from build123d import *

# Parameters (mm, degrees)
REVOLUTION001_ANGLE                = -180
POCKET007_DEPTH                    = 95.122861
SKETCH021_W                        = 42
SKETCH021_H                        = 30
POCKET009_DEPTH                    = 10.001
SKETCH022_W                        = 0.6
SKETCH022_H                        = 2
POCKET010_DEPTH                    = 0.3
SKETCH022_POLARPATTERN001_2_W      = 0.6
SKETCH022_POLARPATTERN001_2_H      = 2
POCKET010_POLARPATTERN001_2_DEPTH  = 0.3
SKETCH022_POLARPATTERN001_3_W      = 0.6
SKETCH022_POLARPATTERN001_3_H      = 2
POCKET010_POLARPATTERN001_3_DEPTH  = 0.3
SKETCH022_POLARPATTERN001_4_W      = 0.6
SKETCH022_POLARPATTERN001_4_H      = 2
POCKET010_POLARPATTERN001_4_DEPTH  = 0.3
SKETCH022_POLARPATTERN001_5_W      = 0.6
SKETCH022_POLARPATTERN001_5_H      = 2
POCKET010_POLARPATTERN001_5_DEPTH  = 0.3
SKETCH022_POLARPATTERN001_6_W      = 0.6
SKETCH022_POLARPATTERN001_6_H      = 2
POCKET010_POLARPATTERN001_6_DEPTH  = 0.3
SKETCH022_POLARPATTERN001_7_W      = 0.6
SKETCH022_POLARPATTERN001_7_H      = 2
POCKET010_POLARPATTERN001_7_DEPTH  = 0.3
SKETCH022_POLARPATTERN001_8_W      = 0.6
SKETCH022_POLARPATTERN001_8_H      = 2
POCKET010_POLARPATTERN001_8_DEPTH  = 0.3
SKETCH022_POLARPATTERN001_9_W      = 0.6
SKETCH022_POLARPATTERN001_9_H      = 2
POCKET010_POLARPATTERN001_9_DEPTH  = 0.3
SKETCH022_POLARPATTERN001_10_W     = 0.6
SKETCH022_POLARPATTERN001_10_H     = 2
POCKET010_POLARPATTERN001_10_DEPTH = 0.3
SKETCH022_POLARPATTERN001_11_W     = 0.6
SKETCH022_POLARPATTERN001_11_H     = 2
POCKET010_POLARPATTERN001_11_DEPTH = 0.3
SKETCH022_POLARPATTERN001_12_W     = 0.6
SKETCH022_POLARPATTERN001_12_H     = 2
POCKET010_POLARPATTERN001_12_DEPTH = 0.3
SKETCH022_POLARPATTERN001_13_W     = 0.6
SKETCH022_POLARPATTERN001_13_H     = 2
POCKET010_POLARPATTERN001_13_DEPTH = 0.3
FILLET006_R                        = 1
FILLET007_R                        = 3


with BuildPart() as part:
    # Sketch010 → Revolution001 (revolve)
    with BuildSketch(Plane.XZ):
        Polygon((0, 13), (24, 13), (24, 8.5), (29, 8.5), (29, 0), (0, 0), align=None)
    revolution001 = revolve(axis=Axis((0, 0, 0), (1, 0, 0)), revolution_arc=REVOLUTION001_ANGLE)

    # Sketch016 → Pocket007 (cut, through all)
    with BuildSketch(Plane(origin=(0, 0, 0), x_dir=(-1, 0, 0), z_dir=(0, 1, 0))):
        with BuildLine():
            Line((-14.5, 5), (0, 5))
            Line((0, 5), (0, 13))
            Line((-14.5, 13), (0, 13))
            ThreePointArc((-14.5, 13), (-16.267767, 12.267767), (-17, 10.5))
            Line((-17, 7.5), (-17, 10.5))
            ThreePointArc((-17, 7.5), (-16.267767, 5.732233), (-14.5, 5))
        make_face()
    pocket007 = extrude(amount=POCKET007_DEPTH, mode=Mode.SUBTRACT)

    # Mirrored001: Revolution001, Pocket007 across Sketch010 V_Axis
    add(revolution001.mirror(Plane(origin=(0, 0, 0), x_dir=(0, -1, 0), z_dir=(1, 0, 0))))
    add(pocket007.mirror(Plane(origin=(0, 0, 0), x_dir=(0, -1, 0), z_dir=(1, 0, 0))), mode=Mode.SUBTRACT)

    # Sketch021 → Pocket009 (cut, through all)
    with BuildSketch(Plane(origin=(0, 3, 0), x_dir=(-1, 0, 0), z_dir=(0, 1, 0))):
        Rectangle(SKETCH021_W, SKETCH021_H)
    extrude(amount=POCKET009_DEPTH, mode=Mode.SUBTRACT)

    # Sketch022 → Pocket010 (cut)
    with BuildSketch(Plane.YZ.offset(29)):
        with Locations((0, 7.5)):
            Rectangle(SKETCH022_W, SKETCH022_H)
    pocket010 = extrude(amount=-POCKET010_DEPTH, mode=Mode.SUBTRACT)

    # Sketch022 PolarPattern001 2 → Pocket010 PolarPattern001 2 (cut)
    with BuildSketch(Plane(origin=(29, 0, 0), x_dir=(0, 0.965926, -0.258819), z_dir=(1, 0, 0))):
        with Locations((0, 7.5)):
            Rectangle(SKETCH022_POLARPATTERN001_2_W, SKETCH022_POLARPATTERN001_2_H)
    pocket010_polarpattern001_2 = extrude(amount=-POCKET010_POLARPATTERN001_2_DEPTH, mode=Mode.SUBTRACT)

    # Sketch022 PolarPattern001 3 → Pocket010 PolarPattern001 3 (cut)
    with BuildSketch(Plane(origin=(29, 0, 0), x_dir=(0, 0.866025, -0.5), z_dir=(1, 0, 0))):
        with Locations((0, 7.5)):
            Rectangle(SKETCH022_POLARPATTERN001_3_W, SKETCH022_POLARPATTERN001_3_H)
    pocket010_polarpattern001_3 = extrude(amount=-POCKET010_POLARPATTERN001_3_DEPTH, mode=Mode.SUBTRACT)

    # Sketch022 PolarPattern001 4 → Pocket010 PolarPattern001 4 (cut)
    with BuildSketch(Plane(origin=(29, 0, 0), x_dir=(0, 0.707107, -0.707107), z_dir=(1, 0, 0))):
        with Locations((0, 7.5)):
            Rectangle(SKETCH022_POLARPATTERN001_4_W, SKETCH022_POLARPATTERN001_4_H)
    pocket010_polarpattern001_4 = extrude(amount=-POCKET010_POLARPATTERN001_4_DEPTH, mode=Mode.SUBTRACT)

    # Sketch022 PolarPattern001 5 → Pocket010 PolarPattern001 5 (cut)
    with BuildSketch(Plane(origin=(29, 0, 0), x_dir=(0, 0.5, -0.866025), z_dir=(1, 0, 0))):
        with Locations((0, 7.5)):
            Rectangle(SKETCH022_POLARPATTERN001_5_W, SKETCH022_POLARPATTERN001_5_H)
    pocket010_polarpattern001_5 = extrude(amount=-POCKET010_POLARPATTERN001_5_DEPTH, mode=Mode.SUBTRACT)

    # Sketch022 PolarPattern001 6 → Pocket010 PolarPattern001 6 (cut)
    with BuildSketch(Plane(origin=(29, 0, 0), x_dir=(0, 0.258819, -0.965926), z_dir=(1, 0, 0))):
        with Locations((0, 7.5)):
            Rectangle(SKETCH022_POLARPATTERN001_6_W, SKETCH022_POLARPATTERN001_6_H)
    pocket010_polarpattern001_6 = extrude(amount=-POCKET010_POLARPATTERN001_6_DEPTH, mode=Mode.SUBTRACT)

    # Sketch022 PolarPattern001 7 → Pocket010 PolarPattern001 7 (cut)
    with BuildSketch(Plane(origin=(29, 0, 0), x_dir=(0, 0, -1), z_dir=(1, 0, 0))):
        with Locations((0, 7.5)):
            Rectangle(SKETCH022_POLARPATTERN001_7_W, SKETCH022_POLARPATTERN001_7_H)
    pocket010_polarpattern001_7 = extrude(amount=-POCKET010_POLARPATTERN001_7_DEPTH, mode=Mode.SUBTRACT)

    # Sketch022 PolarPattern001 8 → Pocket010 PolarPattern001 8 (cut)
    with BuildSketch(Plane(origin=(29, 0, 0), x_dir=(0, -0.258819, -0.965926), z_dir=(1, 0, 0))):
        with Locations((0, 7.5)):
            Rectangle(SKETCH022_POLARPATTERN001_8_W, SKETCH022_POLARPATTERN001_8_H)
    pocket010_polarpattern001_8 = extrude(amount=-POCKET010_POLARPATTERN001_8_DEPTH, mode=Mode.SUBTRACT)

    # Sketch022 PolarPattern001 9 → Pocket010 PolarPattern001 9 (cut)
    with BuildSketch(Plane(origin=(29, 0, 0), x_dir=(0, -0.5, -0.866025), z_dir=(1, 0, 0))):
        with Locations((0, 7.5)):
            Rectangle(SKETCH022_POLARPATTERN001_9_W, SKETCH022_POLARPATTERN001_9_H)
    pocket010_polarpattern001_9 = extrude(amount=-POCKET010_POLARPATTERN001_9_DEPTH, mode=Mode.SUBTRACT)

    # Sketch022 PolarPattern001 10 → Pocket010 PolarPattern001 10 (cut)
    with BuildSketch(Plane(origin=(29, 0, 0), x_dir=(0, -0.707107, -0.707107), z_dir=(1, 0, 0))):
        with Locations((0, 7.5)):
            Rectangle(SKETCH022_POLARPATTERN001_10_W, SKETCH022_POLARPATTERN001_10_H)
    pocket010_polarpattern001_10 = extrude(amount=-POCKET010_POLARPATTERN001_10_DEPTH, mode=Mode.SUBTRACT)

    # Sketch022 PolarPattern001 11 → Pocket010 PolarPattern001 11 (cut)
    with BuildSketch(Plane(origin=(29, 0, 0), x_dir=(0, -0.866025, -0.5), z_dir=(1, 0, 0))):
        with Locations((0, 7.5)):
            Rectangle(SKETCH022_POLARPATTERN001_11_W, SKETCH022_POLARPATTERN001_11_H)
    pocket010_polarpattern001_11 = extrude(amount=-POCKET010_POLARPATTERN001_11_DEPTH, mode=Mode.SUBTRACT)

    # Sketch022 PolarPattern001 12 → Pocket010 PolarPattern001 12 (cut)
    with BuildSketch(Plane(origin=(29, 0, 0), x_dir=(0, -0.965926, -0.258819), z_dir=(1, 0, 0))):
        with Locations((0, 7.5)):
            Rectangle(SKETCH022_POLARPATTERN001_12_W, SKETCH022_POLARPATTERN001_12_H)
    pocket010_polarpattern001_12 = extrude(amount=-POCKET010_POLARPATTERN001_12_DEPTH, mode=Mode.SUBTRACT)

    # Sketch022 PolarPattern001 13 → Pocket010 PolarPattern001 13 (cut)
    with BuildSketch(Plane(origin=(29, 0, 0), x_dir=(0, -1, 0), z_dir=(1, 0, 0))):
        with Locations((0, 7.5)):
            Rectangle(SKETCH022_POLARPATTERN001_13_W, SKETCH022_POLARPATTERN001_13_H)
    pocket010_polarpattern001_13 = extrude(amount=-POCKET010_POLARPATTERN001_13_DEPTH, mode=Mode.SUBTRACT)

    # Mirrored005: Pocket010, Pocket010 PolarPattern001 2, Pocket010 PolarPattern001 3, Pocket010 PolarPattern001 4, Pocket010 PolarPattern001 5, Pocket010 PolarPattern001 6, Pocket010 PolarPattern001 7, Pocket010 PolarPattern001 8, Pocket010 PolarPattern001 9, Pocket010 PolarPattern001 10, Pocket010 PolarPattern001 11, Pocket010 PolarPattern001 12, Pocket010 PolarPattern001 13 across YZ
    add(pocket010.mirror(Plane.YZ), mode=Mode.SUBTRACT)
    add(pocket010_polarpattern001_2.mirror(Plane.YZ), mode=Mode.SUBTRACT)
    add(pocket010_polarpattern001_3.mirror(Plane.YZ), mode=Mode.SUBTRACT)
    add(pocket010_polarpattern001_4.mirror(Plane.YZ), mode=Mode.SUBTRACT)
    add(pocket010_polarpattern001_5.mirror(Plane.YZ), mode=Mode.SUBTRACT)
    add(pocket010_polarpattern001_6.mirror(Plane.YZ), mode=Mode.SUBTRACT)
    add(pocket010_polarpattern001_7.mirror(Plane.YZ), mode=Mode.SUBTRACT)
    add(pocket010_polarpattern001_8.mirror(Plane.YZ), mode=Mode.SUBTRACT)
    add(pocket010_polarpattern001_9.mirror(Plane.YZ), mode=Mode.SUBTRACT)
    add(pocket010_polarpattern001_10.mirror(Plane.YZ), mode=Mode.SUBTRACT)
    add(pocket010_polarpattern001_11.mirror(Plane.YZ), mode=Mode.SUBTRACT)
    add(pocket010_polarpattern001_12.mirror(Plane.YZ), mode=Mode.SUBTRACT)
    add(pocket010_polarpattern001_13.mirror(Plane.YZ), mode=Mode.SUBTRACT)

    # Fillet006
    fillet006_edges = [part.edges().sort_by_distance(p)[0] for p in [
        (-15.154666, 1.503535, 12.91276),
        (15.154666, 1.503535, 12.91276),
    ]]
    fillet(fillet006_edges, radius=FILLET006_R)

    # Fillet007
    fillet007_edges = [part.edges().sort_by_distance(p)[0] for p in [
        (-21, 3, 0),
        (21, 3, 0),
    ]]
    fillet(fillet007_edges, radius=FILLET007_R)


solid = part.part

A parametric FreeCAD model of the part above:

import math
import FreeCAD as App
import Part
import Sketcher

V = App.Vector
Q = App.Units.Quantity


def edges_at(feature, points):
    """Names of the edges that pass closest to the given points."""
    edges = feature.Shape.Edges
    near = lambda p: min(range(len(edges)), key=lambda i: edges[i].distToShape(Part.Vertex(*p))[0])
    return sorted({f"Edge{near(p) + 1}" for p in points})

doc = App.newDocument("Part")
body = doc.addObject("PartDesign::Body", "Body")

# Sketch on XZ plane
sketch1 = doc.addObject("Sketcher::SketchObject", "Sketch")
body.addObject(sketch1)
sketch1.AttachmentSupport = (doc.XZ_Plane, [""])
sketch1.MapMode = "FlatFace"
sketch1.addGeometry([
    Part.LineSegment(V(24, 13, 0), V(0, 13, 0)),  # 0
    Part.LineSegment(V(0, 13, 0), V(0, 0, 0)),  # 1
    Part.LineSegment(V(0, 0, 0), V(29, 0, 0)),  # 2
    Part.LineSegment(V(29, 0, 0), V(29, 8.5, 0)),  # 3
    Part.LineSegment(V(29, 8.5, 0), V(24, 8.5, 0)),  # 4
    Part.LineSegment(V(24, 8.5, 0), V(24, 13, 0)),  # 5
], False)
sketch1.addConstraint([
    Sketcher.Constraint("Coincident", 0, 2, 1, 1),
    Sketcher.Constraint("Coincident", 1, 2, 2, 1),
    Sketcher.Constraint("Coincident", 2, 2, 3, 1),
    Sketcher.Constraint("Coincident", 3, 2, 4, 1),
    Sketcher.Constraint("Coincident", 4, 2, 5, 1),
    Sketcher.Constraint("Coincident", 5, 2, 0, 1),
    Sketcher.Constraint("Horizontal", 0),
    Sketcher.Constraint("Vertical", 1),
    Sketcher.Constraint("Horizontal", 2),
    Sketcher.Constraint("Vertical", 3),
    Sketcher.Constraint("Horizontal", 4),
    Sketcher.Constraint("Vertical", 5),
    Sketcher.Constraint("Coincident", 1, 2, -1, 1),
    Sketcher.Constraint("DistanceX", 0, 2, 0, 1, 24.0),
    Sketcher.Constraint("DistanceX", 2, 1, 2, 2, 29.0),
    Sketcher.Constraint("DistanceY", 1, 2, 1, 1, 13.0),
    Sketcher.Constraint("DistanceY", 3, 1, 3, 2, 8.5),
])
revolution = doc.addObject("PartDesign::Revolution", "Revolution")
body.addObject(revolution)
revolution.Profile = sketch1
revolution.ReferenceAxis = (sketch1, ["H_Axis"])
revolution.Angle = 180
revolution.Reversed = True

# Sketch on XZ plane
sketch2 = doc.addObject("Sketcher::SketchObject", "Sketch001")
body.addObject(sketch2)
sketch2.AttachmentSupport = (doc.XZ_Plane, [""])
sketch2.MapMode = "FlatFace"
sketch2.addGeometry([
    Part.LineSegment(V(14.5, 5, 0), V(0, 5, 0)),  # 0
    Part.LineSegment(V(0, 5, 0), V(0, 13, 0)),  # 1
    Part.LineSegment(V(0, 13, 0), V(14.5, 13, 0)),  # 2
    Part.ArcOfCircle(Part.Circle(V(14.5, 10.5, 0), V(0, 0, 1), 2.5), math.radians(0), math.radians(90)),  # 3
    Part.LineSegment(V(17, 10.5, 0), V(17, 7.5, 0)),  # 4
    Part.ArcOfCircle(Part.Circle(V(14.5, 7.5, 0), V(0, 0, 1), 2.5), math.radians(-90), math.radians(0)),  # 5
], False)
sketch2.addConstraint([
    Sketcher.Constraint("Coincident", 0, 2, 1, 1),
    Sketcher.Constraint("Coincident", 1, 2, 2, 1),
    Sketcher.Constraint("Tangent", 2, 2, 3, 2),
    Sketcher.Constraint("Tangent", 3, 1, 4, 1),
    Sketcher.Constraint("Tangent", 4, 2, 5, 2),
    Sketcher.Constraint("Tangent", 5, 1, 0, 1),
    Sketcher.Constraint("Horizontal", 0),
    Sketcher.Constraint("Vertical", 1),
    Sketcher.Constraint("Horizontal", 2),
    Sketcher.Constraint("Vertical", 4),
    Sketcher.Constraint("Equal", 3, 5),
    Sketcher.Constraint("PointOnObject", 0, 2, -2),
    Sketcher.Constraint("Radius", 3, 2.5),
    Sketcher.Constraint("DistanceY", 1, 1, 1, 2, 8.0),
    Sketcher.Constraint("DistanceX", 0, 2, 0, 1, 14.5),
    Sketcher.Constraint("DistanceY", -1, 1, 0, 2, 5.0),
])
pocket1 = doc.addObject("PartDesign::Pocket", "Pocket")
body.addObject(pocket1)
pocket1.Profile = sketch2
pocket1.Type = "ThroughAll"
doc.recompute()

mirrored = doc.addObject("PartDesign::Mirrored", "Mirrored")
body.addObject(mirrored)
mirrored.Originals = [revolution, pocket1]
mirrored.MirrorPlane = (doc.YZ_Plane, [""])
body.Tip = mirrored

# Sketch on XZ plane
sketch3 = doc.addObject("Sketcher::SketchObject", "Sketch002")
body.addObject(sketch3)
sketch3.AttachmentSupport = (doc.XZ_Plane, [""])
sketch3.MapMode = "FlatFace"
sketch3.AttachmentOffset = App.Placement(V(0, 0, -3), App.Rotation())
sketch3.addGeometry([
    Part.LineSegment(V(21, 15, 0), V(21, -15, 0)),
    Part.LineSegment(V(21, -15, 0), V(-21, -15, 0)),
    Part.LineSegment(V(-21, -15, 0), V(-21, 15, 0)),
    Part.LineSegment(V(-21, 15, 0), V(21, 15, 0)),
], False)
sketch3.addConstraint([
    Sketcher.Constraint("Coincident", 0, 2, 1, 1),
    Sketcher.Constraint("Coincident", 1, 2, 2, 1),
    Sketcher.Constraint("Coincident", 2, 2, 3, 1),
    Sketcher.Constraint("Coincident", 3, 2, 0, 1),
    Sketcher.Constraint("Vertical", 0),
    Sketcher.Constraint("Horizontal", 1),
    Sketcher.Constraint("Vertical", 2),
    Sketcher.Constraint("Horizontal", 3),
    Sketcher.Constraint("Symmetric", 0, 2, 2, 2, -1, 1),
    Sketcher.Constraint("DistanceX", 1, 2, 1, 1, 42.0),
    Sketcher.Constraint("DistanceY", 0, 2, 0, 1, 30.0),
])
pocket2 = doc.addObject("PartDesign::Pocket", "Pocket001")
body.addObject(pocket2)
pocket2.Profile = sketch3
pocket2.Type = "ThroughAll"

# Sketch on YZ plane
sketch4 = doc.addObject("Sketcher::SketchObject", "Sketch003")
body.addObject(sketch4)
sketch4.AttachmentSupport = (doc.YZ_Plane, [""])
sketch4.MapMode = "FlatFace"
sketch4.AttachmentOffset = App.Placement(V(0, 0, 29), App.Rotation())
sketch4.addGeometry([
    Part.LineSegment(V(-0.3, 8.5, 0), V(-0.3, 6.5, 0)),
    Part.LineSegment(V(-0.3, 6.5, 0), V(0.3, 6.5, 0)),
    Part.LineSegment(V(0.3, 6.5, 0), V(0.3, 8.5, 0)),
    Part.LineSegment(V(0.3, 8.5, 0), V(-0.3, 8.5, 0)),
], False)
sketch4.addConstraint([
    Sketcher.Constraint("Coincident", 0, 2, 1, 1),
    Sketcher.Constraint("Coincident", 1, 2, 2, 1),
    Sketcher.Constraint("Coincident", 2, 2, 3, 1),
    Sketcher.Constraint("Coincident", 3, 2, 0, 1),
    Sketcher.Constraint("Vertical", 0),
    Sketcher.Constraint("Horizontal", 1),
    Sketcher.Constraint("Vertical", 2),
    Sketcher.Constraint("Horizontal", 3),
    Sketcher.Constraint("DistanceY", 0, 2, 0, 1, 2.0),
    Sketcher.Constraint("DistanceX", 1, 1, 1, 2, 0.6),
    Sketcher.Constraint("DistanceX", 0, 2, -1, 1, 0.3),
    Sketcher.Constraint("DistanceY", -1, 1, 0, 2, 6.5),
])
pocket3 = doc.addObject("PartDesign::Pocket", "Pocket002")
body.addObject(pocket3)
pocket3.Profile = sketch4
pocket3.Length = 0.3

# Sketch on YZ plane
sketch5 = doc.addObject("Sketcher::SketchObject", "Sketch004")
body.addObject(sketch5)
sketch5.AttachmentSupport = (doc.YZ_Plane, [""])
sketch5.MapMode = "FlatFace"
sketch5.AttachmentOffset = App.Placement(V(0, 0, 29), App.Rotation())
sketch5.addGeometry([
    Part.LineSegment(V(1.9, 8.3, 0), V(1.4, 6.4, 0)),
    Part.LineSegment(V(1.4, 6.4, 0), V(2, 6.2, 0)),
    Part.LineSegment(V(2, 6.2, 0), V(2.5, 8.1, 0)),
    Part.LineSegment(V(2.5, 8.1, 0), V(1.9, 8.3, 0)),
], False)
sketch5.addConstraint([
    Sketcher.Constraint("Coincident", 0, 2, 1, 1),
    Sketcher.Constraint("Coincident", 1, 2, 2, 1),
    Sketcher.Constraint("Coincident", 2, 2, 3, 1),
    Sketcher.Constraint("Coincident", 3, 2, 0, 1),
    Sketcher.Constraint("Perpendicular", 0, 1),
    Sketcher.Constraint("Perpendicular", 1, 2),
    Sketcher.Constraint("Perpendicular", 2, 3),
    Sketcher.Constraint("Angle", 0, Q("-104.999995 deg")),
    Sketcher.Constraint("Distance", 0, 2.0),
    Sketcher.Constraint("Distance", 1, 0.6),
    Sketcher.Constraint("DistanceX", -1, 1, 1, 2, 1.972101),
    Sketcher.Constraint("DistanceY", -1, 1, 0, 2, 6.356164),
])
pocket4 = doc.addObject("PartDesign::Pocket", "Pocket003")
body.addObject(pocket4)
pocket4.Profile = sketch5
pocket4.Length = 0.3

# Sketch on YZ plane
sketch6 = doc.addObject("Sketcher::SketchObject", "Sketch005")
body.addObject(sketch6)
sketch6.AttachmentSupport = (doc.YZ_Plane, [""])
sketch6.MapMode = "FlatFace"
sketch6.AttachmentOffset = App.Placement(V(0, 0, 29), App.Rotation())
sketch6.addGeometry([
    Part.LineSegment(V(4, 7.5, 0), V(3, 5.8, 0)),
    Part.LineSegment(V(3, 5.8, 0), V(3.5, 5.5, 0)),
    Part.LineSegment(V(3.5, 5.5, 0), V(4.5, 7.2, 0)),
    Part.LineSegment(V(4.5, 7.2, 0), V(4, 7.5, 0)),
], False)
sketch6.addConstraint([
    Sketcher.Constraint("Coincident", 0, 2, 1, 1),
    Sketcher.Constraint("Coincident", 1, 2, 2, 1),
    Sketcher.Constraint("Coincident", 2, 2, 3, 1),
    Sketcher.Constraint("Coincident", 3, 2, 0, 1),
    Sketcher.Constraint("Perpendicular", 0, 1),
    Sketcher.Constraint("Perpendicular", 1, 2),
    Sketcher.Constraint("Perpendicular", 2, 3),
    Sketcher.Constraint("Angle", 0, Q("-120.000012 deg")),
    Sketcher.Constraint("Distance", 0, 2.0),
    Sketcher.Constraint("Distance", 1, 0.6),
    Sketcher.Constraint("DistanceX", -1, 1, 1, 2, 3.509809),
    Sketcher.Constraint("DistanceY", -1, 1, 0, 2, 5.779165),
])
pocket5 = doc.addObject("PartDesign::Pocket", "Pocket004")
body.addObject(pocket5)
pocket5.Profile = sketch6
pocket5.Length = 0.3

# Sketch on YZ plane
sketch7 = doc.addObject("Sketcher::SketchObject", "Sketch006")
body.addObject(sketch7)
sketch7.AttachmentSupport = (doc.YZ_Plane, [""])
sketch7.MapMode = "FlatFace"
sketch7.AttachmentOffset = App.Placement(V(0, 0, 29), App.Rotation())
sketch7.addGeometry([
    Part.LineSegment(V(5.8, 6.2, 0), V(4.4, 4.8, 0)),
    Part.LineSegment(V(4.4, 4.8, 0), V(4.8, 4.4, 0)),
    Part.LineSegment(V(4.8, 4.4, 0), V(6.2, 5.8, 0)),
    Part.LineSegment(V(6.2, 5.8, 0), V(5.8, 6.2, 0)),
], False)
sketch7.addConstraint([
    Sketcher.Constraint("Coincident", 0, 2, 1, 1),
    Sketcher.Constraint("Coincident", 1, 2, 2, 1),
    Sketcher.Constraint("Coincident", 2, 2, 3, 1),
    Sketcher.Constraint("Coincident", 3, 2, 0, 1),
    Sketcher.Constraint("Perpendicular", 0, 1),
    Sketcher.Constraint("Perpendicular", 1, 2),
    Sketcher.Constraint("Perpendicular", 2, 3),
    Sketcher.Constraint("Angle", 0, Q("-135 deg")),
    Sketcher.Constraint("Distance", 0, 2.0),
    Sketcher.Constraint("Distance", 1, 0.6),
    Sketcher.Constraint("DistanceX", -1, 1, 2, 2, 6.22254),
    Sketcher.Constraint("DistanceY", -1, 1, 3, 2, 6.22254),
])
pocket6 = doc.addObject("PartDesign::Pocket", "Pocket005")
body.addObject(pocket6)
pocket6.Profile = sketch7
pocket6.Length = 0.3

# Sketch on YZ plane
sketch8 = doc.addObject("Sketcher::SketchObject", "Sketch007")
body.addObject(sketch8)
sketch8.AttachmentSupport = (doc.YZ_Plane, [""])
sketch8.MapMode = "FlatFace"
sketch8.AttachmentOffset = App.Placement(V(0, 0, 29), App.Rotation())
sketch8.addGeometry([
    Part.LineSegment(V(7.2, 4.5, 0), V(5.5, 3.5, 0)),
    Part.LineSegment(V(5.5, 3.5, 0), V(5.8, 3, 0)),
    Part.LineSegment(V(5.8, 3, 0), V(7.5, 4, 0)),
    Part.LineSegment(V(7.5, 4, 0), V(7.2, 4.5, 0)),
], False)
sketch8.addConstraint([
    Sketcher.Constraint("Coincident", 0, 2, 1, 1),
    Sketcher.Constraint("Coincident", 1, 2, 2, 1),
    Sketcher.Constraint("Coincident", 2, 2, 3, 1),
    Sketcher.Constraint("Coincident", 3, 2, 0, 1),
    Sketcher.Constraint("Perpendicular", 0, 1),
    Sketcher.Constraint("Perpendicular", 1, 2),
    Sketcher.Constraint("Perpendicular", 2, 3),
    Sketcher.Constraint("Angle", 0, Q("-149.999988 deg")),
    Sketcher.Constraint("Distance", 0, 2.0),
    Sketcher.Constraint("Distance", 1, 0.6),
    Sketcher.Constraint("DistanceY", -1, 1, 0, 2, 3.509809),
    Sketcher.Constraint("DistanceX", -1, 1, 0, 2, 5.479164),
])
pocket7 = doc.addObject("PartDesign::Pocket", "Pocket006")
body.addObject(pocket7)
pocket7.Profile = sketch8
pocket7.Length = 0.3

# Sketch on YZ plane
sketch9 = doc.addObject("Sketcher::SketchObject", "Sketch008")
body.addObject(sketch9)
sketch9.AttachmentSupport = (doc.YZ_Plane, [""])
sketch9.MapMode = "FlatFace"
sketch9.AttachmentOffset = App.Placement(V(0, 0, 29), App.Rotation())
sketch9.addGeometry([
    Part.LineSegment(V(8.1, 2.5, 0), V(6.2, 2, 0)),
    Part.LineSegment(V(6.2, 2, 0), V(6.4, 1.4, 0)),
    Part.LineSegment(V(6.4, 1.4, 0), V(8.3, 1.9, 0)),
    Part.LineSegment(V(8.3, 1.9, 0), V(8.1, 2.5, 0)),
], False)
sketch9.addConstraint([
    Sketcher.Constraint("Coincident", 0, 2, 1, 1),
    Sketcher.Constraint("Coincident", 1, 2, 2, 1),
    Sketcher.Constraint("Coincident", 2, 2, 3, 1),
    Sketcher.Constraint("Coincident", 3, 2, 0, 1),
    Sketcher.Constraint("Perpendicular", 0, 1),
    Sketcher.Constraint("Perpendicular", 1, 2),
    Sketcher.Constraint("Perpendicular", 2, 3),
    Sketcher.Constraint("Angle", 0, Q("-165.000005 deg")),
    Sketcher.Constraint("Distance", 0, 2.0),
    Sketcher.Constraint("Distance", 1, 0.6),
    Sketcher.Constraint("DistanceY", -1, 1, 0, 2, 1.972101),
    Sketcher.Constraint("DistanceX", -1, 1, 0, 2, 6.200872),
])
pocket8 = doc.addObject("PartDesign::Pocket", "Pocket007")
body.addObject(pocket8)
pocket8.Profile = sketch9
pocket8.Length = 0.3

# Sketch on YZ plane
sketch10 = doc.addObject("Sketcher::SketchObject", "Sketch009")
body.addObject(sketch10)
sketch10.AttachmentSupport = (doc.YZ_Plane, [""])
sketch10.MapMode = "FlatFace"
sketch10.AttachmentOffset = App.Placement(V(0, 0, 29), App.Rotation())
sketch10.addGeometry([
    Part.LineSegment(V(8.5, 0.3, 0), V(6.5, 0.3, 0)),
    Part.LineSegment(V(6.5, 0.3, 0), V(6.5, -0.3, 0)),
    Part.LineSegment(V(6.5, -0.3, 0), V(8.5, -0.3, 0)),
    Part.LineSegment(V(8.5, -0.3, 0), V(8.5, 0.3, 0)),
], False)
sketch10.addConstraint([
    Sketcher.Constraint("Coincident", 0, 2, 1, 1),
    Sketcher.Constraint("Coincident", 1, 2, 2, 1),
    Sketcher.Constraint("Coincident", 2, 2, 3, 1),
    Sketcher.Constraint("Coincident", 3, 2, 0, 1),
    Sketcher.Constraint("Horizontal", 0),
    Sketcher.Constraint("Vertical", 1),
    Sketcher.Constraint("Horizontal", 2),
    Sketcher.Constraint("Vertical", 3),
    Sketcher.Constraint("DistanceX", 0, 2, 0, 1, 2.0),
    Sketcher.Constraint("DistanceY", 1, 2, 1, 1, 0.6),
    Sketcher.Constraint("DistanceX", -1, 1, 0, 2, 6.5),
    Sketcher.Constraint("DistanceY", -1, 1, 0, 2, 0.3),
])
pocket9 = doc.addObject("PartDesign::Pocket", "Pocket008")
body.addObject(pocket9)
pocket9.Profile = sketch10
pocket9.Length = 0.3

# Sketch on YZ plane
sketch11 = doc.addObject("Sketcher::SketchObject", "Sketch010")
body.addObject(sketch11)
sketch11.AttachmentSupport = (doc.YZ_Plane, [""])
sketch11.MapMode = "FlatFace"
sketch11.AttachmentOffset = App.Placement(V(0, 0, 29), App.Rotation())
sketch11.addGeometry([
    Part.LineSegment(V(8.3, -1.9, 0), V(6.4, -1.4, 0)),
    Part.LineSegment(V(6.4, -1.4, 0), V(6.2, -2, 0)),
    Part.LineSegment(V(6.2, -2, 0), V(8.1, -2.5, 0)),
    Part.LineSegment(V(8.1, -2.5, 0), V(8.3, -1.9, 0)),
], False)
sketch11.addConstraint([
    Sketcher.Constraint("Coincident", 0, 2, 1, 1),
    Sketcher.Constraint("Coincident", 1, 2, 2, 1),
    Sketcher.Constraint("Coincident", 2, 2, 3, 1),
    Sketcher.Constraint("Coincident", 3, 2, 0, 1),
    Sketcher.Constraint("Perpendicular", 0, 1),
    Sketcher.Constraint("Perpendicular", 1, 2),
    Sketcher.Constraint("Perpendicular", 2, 3),
    Sketcher.Constraint("Angle", 0, Q("165.000005 deg")),
    Sketcher.Constraint("Distance", 0, 2.0),
    Sketcher.Constraint("Distance", 1, 0.6),
    Sketcher.Constraint("DistanceY", 1, 2, -1, 1, 1.972101),
    Sketcher.Constraint("DistanceX", -1, 1, 0, 2, 6.356164),
])
pocket10 = doc.addObject("PartDesign::Pocket", "Pocket009")
body.addObject(pocket10)
pocket10.Profile = sketch11
pocket10.Length = 0.3

# Sketch on YZ plane
sketch12 = doc.addObject("Sketcher::SketchObject", "Sketch011")
body.addObject(sketch12)
sketch12.AttachmentSupport = (doc.YZ_Plane, [""])
sketch12.MapMode = "FlatFace"
sketch12.AttachmentOffset = App.Placement(V(0, 0, 29), App.Rotation())
sketch12.addGeometry([
    Part.LineSegment(V(7.5, -4, 0), V(5.8, -3, 0)),
    Part.LineSegment(V(5.8, -3, 0), V(5.5, -3.5, 0)),
    Part.LineSegment(V(5.5, -3.5, 0), V(7.2, -4.5, 0)),
    Part.LineSegment(V(7.2, -4.5, 0), V(7.5, -4, 0)),
], False)
sketch12.addConstraint([
    Sketcher.Constraint("Coincident", 0, 2, 1, 1),
    Sketcher.Constraint("Coincident", 1, 2, 2, 1),
    Sketcher.Constraint("Coincident", 2, 2, 3, 1),
    Sketcher.Constraint("Coincident", 3, 2, 0, 1),
    Sketcher.Constraint("Perpendicular", 0, 1),
    Sketcher.Constraint("Perpendicular", 1, 2),
    Sketcher.Constraint("Perpendicular", 2, 3),
    Sketcher.Constraint("Angle", 0, Q("149.999988 deg")),
    Sketcher.Constraint("Distance", 0, 2.0),
    Sketcher.Constraint("Distance", 1, 0.6),
    Sketcher.Constraint("DistanceY", 1, 2, -1, 1, 3.509809),
    Sketcher.Constraint("DistanceX", -1, 1, 0, 2, 5.779165),
])
pocket11 = doc.addObject("PartDesign::Pocket", "Pocket010")
body.addObject(pocket11)
pocket11.Profile = sketch12
pocket11.Length = 0.3

# Sketch on YZ plane
sketch13 = doc.addObject("Sketcher::SketchObject", "Sketch012")
body.addObject(sketch13)
sketch13.AttachmentSupport = (doc.YZ_Plane, [""])
sketch13.MapMode = "FlatFace"
sketch13.AttachmentOffset = App.Placement(V(0, 0, 29), App.Rotation())
sketch13.addGeometry([
    Part.LineSegment(V(6.2, -5.8, 0), V(4.8, -4.4, 0)),
    Part.LineSegment(V(4.8, -4.4, 0), V(4.4, -4.8, 0)),
    Part.LineSegment(V(4.4, -4.8, 0), V(5.8, -6.2, 0)),
    Part.LineSegment(V(5.8, -6.2, 0), V(6.2, -5.8, 0)),
], False)
sketch13.addConstraint([
    Sketcher.Constraint("Coincident", 0, 2, 1, 1),
    Sketcher.Constraint("Coincident", 1, 2, 2, 1),
    Sketcher.Constraint("Coincident", 2, 2, 3, 1),
    Sketcher.Constraint("Coincident", 3, 2, 0, 1),
    Sketcher.Constraint("Perpendicular", 0, 1),
    Sketcher.Constraint("Perpendicular", 1, 2),
    Sketcher.Constraint("Perpendicular", 2, 3),
    Sketcher.Constraint("Angle", 0, Q("135 deg")),
    Sketcher.Constraint("Distance", 0, 2.0),
    Sketcher.Constraint("Distance", 1, 0.6),
    Sketcher.Constraint("DistanceY", 2, 2, -1, 1, 6.22254),
    Sketcher.Constraint("DistanceX", -1, 1, 3, 2, 6.22254),
])
pocket12 = doc.addObject("PartDesign::Pocket", "Pocket011")
body.addObject(pocket12)
pocket12.Profile = sketch13
pocket12.Length = 0.3

# Sketch on YZ plane
sketch14 = doc.addObject("Sketcher::SketchObject", "Sketch013")
body.addObject(sketch14)
sketch14.AttachmentSupport = (doc.YZ_Plane, [""])
sketch14.MapMode = "FlatFace"
sketch14.AttachmentOffset = App.Placement(V(0, 0, 29), App.Rotation())
sketch14.addGeometry([
    Part.LineSegment(V(4.5, -7.2, 0), V(3.5, -5.5, 0)),
    Part.LineSegment(V(3.5, -5.5, 0), V(3, -5.8, 0)),
    Part.LineSegment(V(3, -5.8, 0), V(4, -7.5, 0)),
    Part.LineSegment(V(4, -7.5, 0), V(4.5, -7.2, 0)),
], False)
sketch14.addConstraint([
    Sketcher.Constraint("Coincident", 0, 2, 1, 1),
    Sketcher.Constraint("Coincident", 1, 2, 2, 1),
    Sketcher.Constraint("Coincident", 2, 2, 3, 1),
    Sketcher.Constraint("Coincident", 3, 2, 0, 1),
    Sketcher.Constraint("Perpendicular", 0, 1),
    Sketcher.Constraint("Perpendicular", 1, 2),
    Sketcher.Constraint("Perpendicular", 2, 3),
    Sketcher.Constraint("Angle", 0, Q("120.000012 deg")),
    Sketcher.Constraint("Distance", 0, 2.0),
    Sketcher.Constraint("Distance", 1, 0.6),
    Sketcher.Constraint("DistanceX", -1, 1, 0, 2, 3.509809),
    Sketcher.Constraint("DistanceY", 0, 2, -1, 1, 5.479164),
])
pocket13 = doc.addObject("PartDesign::Pocket", "Pocket012")
body.addObject(pocket13)
pocket13.Profile = sketch14
pocket13.Length = 0.3

# Sketch on YZ plane
sketch15 = doc.addObject("Sketcher::SketchObject", "Sketch014")
body.addObject(sketch15)
sketch15.AttachmentSupport = (doc.YZ_Plane, [""])
sketch15.MapMode = "FlatFace"
sketch15.AttachmentOffset = App.Placement(V(0, 0, 29), App.Rotation())
sketch15.addGeometry([
    Part.LineSegment(V(2.5, -8.1, 0), V(2, -6.2, 0)),
    Part.LineSegment(V(2, -6.2, 0), V(1.4, -6.4, 0)),
    Part.LineSegment(V(1.4, -6.4, 0), V(1.9, -8.3, 0)),
    Part.LineSegment(V(1.9, -8.3, 0), V(2.5, -8.1, 0)),
], False)
sketch15.addConstraint([
    Sketcher.Constraint("Coincident", 0, 2, 1, 1),
    Sketcher.Constraint("Coincident", 1, 2, 2, 1),
    Sketcher.Constraint("Coincident", 2, 2, 3, 1),
    Sketcher.Constraint("Coincident", 3, 2, 0, 1),
    Sketcher.Constraint("Perpendicular", 0, 1),
    Sketcher.Constraint("Perpendicular", 1, 2),
    Sketcher.Constraint("Perpendicular", 2, 3),
    Sketcher.Constraint("Angle", 0, Q("104.999995 deg")),
    Sketcher.Constraint("Distance", 0, 2.0),
    Sketcher.Constraint("Distance", 1, 0.6),
    Sketcher.Constraint("DistanceX", -1, 1, 0, 2, 1.972101),
    Sketcher.Constraint("DistanceY", 0, 2, -1, 1, 6.200872),
])
pocket14 = doc.addObject("PartDesign::Pocket", "Pocket013")
body.addObject(pocket14)
pocket14.Profile = sketch15
pocket14.Length = 0.3

# Sketch on YZ plane
sketch16 = doc.addObject("Sketcher::SketchObject", "Sketch015")
body.addObject(sketch16)
sketch16.AttachmentSupport = (doc.YZ_Plane, [""])
sketch16.MapMode = "FlatFace"
sketch16.AttachmentOffset = App.Placement(V(0, 0, 29), App.Rotation())
sketch16.addGeometry([
    Part.LineSegment(V(0.3, -8.5, 0), V(0.3, -6.5, 0)),
    Part.LineSegment(V(0.3, -6.5, 0), V(-0.3, -6.5, 0)),
    Part.LineSegment(V(-0.3, -6.5, 0), V(-0.3, -8.5, 0)),
    Part.LineSegment(V(-0.3, -8.5, 0), V(0.3, -8.5, 0)),
], False)
sketch16.addConstraint([
    Sketcher.Constraint("Coincident", 0, 2, 1, 1),
    Sketcher.Constraint("Coincident", 1, 2, 2, 1),
    Sketcher.Constraint("Coincident", 2, 2, 3, 1),
    Sketcher.Constraint("Coincident", 3, 2, 0, 1),
    Sketcher.Constraint("Vertical", 0),
    Sketcher.Constraint("Horizontal", 1),
    Sketcher.Constraint("Vertical", 2),
    Sketcher.Constraint("Horizontal", 3),
    Sketcher.Constraint("DistanceY", 0, 1, 0, 2, 2.0),
    Sketcher.Constraint("DistanceX", 1, 2, 1, 1, 0.6),
    Sketcher.Constraint("DistanceX", -1, 1, 0, 2, 0.3),
    Sketcher.Constraint("DistanceY", 0, 2, -1, 1, 6.5),
])
pocket15 = doc.addObject("PartDesign::Pocket", "Pocket014")
body.addObject(pocket15)
pocket15.Profile = sketch16
pocket15.Length = 0.3
doc.recompute()

mirrored2 = doc.addObject("PartDesign::Mirrored", "Mirrored001")
body.addObject(mirrored2)
mirrored2.Originals = [pocket3, pocket4, pocket5, pocket6, pocket7, pocket8, pocket9, pocket10, pocket11, pocket12, pocket13, pocket14, pocket15]
mirrored2.MirrorPlane = (doc.YZ_Plane, [""])
body.Tip = mirrored2
doc.recompute()

fillet = doc.addObject("PartDesign::Fillet", "Fillet")
body.addObject(fillet)
fillet.Base = (mirrored2, edges_at(mirrored2, [(-15.155, 1.504, 12.913), (15.155, 1.504, 12.913)]))
fillet.Radius = 1
doc.recompute()

fillet2 = doc.addObject("PartDesign::Fillet", "Fillet001")
body.addObject(fillet2)
fillet2.Base = (fillet, edges_at(fillet, [(-21, 3, 0), (21, 3, 0)]))
fillet2.Radius = 3

doc.recompute()
